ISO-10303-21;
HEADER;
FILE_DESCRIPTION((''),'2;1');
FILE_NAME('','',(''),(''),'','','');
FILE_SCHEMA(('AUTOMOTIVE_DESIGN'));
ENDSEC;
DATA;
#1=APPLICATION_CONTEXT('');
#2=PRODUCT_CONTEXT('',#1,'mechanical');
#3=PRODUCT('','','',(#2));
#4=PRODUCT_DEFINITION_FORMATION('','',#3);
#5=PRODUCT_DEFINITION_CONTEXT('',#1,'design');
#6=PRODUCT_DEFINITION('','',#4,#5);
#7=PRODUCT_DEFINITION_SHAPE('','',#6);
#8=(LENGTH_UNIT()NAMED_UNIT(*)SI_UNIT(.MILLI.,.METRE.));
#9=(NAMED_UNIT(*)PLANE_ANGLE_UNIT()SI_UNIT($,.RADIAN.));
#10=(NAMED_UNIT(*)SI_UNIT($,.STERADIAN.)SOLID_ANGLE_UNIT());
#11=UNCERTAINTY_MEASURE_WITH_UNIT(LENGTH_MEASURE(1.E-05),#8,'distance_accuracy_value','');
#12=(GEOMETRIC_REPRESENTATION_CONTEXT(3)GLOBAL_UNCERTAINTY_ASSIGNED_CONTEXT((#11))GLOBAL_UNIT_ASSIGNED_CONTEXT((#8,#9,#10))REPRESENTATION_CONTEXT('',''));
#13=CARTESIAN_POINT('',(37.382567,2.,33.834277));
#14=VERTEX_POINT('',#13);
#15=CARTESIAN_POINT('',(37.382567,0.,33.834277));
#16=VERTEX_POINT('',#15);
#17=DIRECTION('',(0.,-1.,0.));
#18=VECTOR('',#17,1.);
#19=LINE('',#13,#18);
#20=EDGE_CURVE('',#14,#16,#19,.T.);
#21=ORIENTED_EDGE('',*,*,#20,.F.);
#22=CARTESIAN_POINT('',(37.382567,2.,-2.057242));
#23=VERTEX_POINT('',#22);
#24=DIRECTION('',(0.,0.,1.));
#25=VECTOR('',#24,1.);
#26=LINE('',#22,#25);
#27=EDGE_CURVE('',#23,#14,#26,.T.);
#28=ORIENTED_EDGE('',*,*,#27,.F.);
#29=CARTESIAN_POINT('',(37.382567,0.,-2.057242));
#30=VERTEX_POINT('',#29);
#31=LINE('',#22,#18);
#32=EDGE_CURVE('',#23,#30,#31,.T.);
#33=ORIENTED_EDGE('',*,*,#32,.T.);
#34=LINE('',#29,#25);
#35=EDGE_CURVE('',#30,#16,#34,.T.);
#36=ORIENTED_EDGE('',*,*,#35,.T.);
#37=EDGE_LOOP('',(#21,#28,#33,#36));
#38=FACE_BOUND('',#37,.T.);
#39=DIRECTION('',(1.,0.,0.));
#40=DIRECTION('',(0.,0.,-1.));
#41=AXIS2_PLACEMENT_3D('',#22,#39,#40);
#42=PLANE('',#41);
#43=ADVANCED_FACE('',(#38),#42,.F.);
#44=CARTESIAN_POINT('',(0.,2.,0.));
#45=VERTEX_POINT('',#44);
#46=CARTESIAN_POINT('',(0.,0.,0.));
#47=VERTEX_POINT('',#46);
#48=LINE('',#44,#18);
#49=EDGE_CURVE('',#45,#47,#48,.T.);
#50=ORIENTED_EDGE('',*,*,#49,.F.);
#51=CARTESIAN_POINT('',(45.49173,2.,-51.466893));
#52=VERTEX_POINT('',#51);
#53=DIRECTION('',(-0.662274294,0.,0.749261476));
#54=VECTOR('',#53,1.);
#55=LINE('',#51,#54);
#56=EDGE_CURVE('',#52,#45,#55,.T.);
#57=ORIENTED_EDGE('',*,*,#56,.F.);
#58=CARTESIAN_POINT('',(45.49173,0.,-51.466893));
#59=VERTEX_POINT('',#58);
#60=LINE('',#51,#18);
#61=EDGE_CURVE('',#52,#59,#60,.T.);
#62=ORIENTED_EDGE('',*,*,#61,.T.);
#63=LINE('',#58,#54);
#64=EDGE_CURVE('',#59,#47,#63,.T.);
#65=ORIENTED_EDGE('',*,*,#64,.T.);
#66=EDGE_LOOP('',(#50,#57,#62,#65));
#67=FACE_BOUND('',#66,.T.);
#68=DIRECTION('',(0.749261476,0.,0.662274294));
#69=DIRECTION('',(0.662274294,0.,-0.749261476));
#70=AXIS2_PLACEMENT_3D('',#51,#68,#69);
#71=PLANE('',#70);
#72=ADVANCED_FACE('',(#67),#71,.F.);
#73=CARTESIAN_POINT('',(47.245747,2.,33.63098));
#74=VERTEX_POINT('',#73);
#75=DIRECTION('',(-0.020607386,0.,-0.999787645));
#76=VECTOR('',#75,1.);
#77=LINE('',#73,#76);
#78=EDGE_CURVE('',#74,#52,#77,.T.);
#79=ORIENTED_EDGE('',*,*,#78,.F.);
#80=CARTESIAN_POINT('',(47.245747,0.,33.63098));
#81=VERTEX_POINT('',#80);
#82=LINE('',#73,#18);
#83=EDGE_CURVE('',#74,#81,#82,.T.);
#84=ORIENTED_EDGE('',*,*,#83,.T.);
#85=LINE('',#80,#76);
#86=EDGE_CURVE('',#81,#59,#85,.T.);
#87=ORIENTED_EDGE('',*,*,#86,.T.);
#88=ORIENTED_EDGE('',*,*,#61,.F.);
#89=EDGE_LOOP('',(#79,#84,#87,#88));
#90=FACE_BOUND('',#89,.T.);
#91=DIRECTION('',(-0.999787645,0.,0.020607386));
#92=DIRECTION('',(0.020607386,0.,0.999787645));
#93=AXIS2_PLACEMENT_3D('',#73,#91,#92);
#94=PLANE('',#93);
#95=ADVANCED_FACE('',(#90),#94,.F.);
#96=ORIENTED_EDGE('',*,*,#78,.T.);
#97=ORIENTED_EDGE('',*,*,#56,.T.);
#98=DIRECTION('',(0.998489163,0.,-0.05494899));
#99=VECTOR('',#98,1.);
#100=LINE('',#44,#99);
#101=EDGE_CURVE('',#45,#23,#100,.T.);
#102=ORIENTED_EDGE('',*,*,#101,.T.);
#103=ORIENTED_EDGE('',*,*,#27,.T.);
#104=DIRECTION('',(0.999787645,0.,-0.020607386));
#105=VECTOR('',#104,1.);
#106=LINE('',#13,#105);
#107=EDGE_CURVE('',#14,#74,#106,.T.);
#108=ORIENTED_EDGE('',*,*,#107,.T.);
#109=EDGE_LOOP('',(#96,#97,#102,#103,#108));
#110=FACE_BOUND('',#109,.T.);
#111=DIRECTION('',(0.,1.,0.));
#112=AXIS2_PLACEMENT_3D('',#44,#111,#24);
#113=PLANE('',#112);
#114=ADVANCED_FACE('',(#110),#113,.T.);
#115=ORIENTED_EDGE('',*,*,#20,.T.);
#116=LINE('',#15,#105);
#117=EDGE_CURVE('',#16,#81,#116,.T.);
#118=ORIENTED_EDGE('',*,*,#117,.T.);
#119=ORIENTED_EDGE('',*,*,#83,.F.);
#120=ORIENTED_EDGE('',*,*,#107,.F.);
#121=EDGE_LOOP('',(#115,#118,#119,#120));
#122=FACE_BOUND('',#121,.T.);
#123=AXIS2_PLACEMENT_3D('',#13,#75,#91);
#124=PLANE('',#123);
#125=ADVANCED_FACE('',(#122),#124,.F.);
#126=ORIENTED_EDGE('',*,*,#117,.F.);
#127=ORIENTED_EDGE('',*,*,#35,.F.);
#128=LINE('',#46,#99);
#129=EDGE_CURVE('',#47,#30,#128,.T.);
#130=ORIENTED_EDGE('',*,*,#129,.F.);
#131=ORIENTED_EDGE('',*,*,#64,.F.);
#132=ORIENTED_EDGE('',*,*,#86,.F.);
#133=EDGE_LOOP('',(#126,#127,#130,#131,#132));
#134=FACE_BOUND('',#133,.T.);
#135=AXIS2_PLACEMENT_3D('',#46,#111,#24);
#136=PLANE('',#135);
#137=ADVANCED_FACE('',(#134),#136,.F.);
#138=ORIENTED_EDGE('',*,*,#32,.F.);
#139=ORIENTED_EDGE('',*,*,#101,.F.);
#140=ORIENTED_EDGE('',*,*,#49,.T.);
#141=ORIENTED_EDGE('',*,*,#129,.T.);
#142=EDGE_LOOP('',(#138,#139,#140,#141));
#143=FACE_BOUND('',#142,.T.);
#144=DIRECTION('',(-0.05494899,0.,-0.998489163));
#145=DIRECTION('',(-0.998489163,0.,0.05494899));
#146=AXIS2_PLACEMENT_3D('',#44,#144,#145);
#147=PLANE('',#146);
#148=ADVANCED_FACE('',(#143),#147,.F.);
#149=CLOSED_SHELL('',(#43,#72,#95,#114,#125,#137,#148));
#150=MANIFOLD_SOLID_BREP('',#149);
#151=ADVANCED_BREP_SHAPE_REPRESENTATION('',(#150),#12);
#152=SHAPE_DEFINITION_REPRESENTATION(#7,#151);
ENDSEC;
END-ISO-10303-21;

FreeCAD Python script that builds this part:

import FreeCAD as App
import Part
import Sketcher

V = App.Vector


def add_polygon(sketch, points):
    """Adds a closed chain of lines whose ends are joined by coincident constraints."""
    first, n = sketch.GeometryCount, len(points)
    for a, b in zip(points, points[1:] + points[:1]):
        sketch.addGeometry(Part.LineSegment(App.Vector(*a, 0), App.Vector(*b, 0)), False)
    for i in range(n):
        sketch.addConstraint(Sketcher.Constraint("Coincident", first + i, 2, first + (i + 1) % n, 1))

doc = App.newDocument("Part")
body = doc.addObject("PartDesign::Body", "Body")

# Sketch on XZ plane
sketch1 = body.newObject("Sketcher::SketchObject", "Sketch")
sketch1.AttachmentSupport = (doc.getObject("XZ_Plane"), [""])
sketch1.MapMode = "FlatFace"
add_polygon(sketch1, [(37.382567, -2.057242), (37.382567, 33.834277), (47.245747, 33.63098), (45.49173, -51.466893), (0, 0)])  # lines 0-4
sketch1.addConstraint([
    Sketcher.Constraint("Vertical", 0),
    Sketcher.Constraint("Coincident", 3, 2, -1, 1),
    Sketcher.Constraint("Perpendicular", 1, 2),
    Sketcher.Constraint("DistanceY", 0, 1, 0, 2, 35.89152),
    Sketcher.Constraint("Distance", 4, 37.439132),
    Sketcher.Constraint("DistanceY", -1, 1, 1, 2, 33.63098),
    Sketcher.Constraint("DistanceX", -1, 1, 2, 2, 45.49173),
    Sketcher.Constraint("DistanceX", 0, 2, 1, 2, 9.86318),
    Sketcher.Constraint("DistanceY", 2, 2, 0, 2, 85.301171),
])
pad1 = body.newObject("PartDesign::Pad", "Pad")
pad1.Profile = sketch1
pad1.Length = 2
pad1.Reversed = True

doc.recompute()
